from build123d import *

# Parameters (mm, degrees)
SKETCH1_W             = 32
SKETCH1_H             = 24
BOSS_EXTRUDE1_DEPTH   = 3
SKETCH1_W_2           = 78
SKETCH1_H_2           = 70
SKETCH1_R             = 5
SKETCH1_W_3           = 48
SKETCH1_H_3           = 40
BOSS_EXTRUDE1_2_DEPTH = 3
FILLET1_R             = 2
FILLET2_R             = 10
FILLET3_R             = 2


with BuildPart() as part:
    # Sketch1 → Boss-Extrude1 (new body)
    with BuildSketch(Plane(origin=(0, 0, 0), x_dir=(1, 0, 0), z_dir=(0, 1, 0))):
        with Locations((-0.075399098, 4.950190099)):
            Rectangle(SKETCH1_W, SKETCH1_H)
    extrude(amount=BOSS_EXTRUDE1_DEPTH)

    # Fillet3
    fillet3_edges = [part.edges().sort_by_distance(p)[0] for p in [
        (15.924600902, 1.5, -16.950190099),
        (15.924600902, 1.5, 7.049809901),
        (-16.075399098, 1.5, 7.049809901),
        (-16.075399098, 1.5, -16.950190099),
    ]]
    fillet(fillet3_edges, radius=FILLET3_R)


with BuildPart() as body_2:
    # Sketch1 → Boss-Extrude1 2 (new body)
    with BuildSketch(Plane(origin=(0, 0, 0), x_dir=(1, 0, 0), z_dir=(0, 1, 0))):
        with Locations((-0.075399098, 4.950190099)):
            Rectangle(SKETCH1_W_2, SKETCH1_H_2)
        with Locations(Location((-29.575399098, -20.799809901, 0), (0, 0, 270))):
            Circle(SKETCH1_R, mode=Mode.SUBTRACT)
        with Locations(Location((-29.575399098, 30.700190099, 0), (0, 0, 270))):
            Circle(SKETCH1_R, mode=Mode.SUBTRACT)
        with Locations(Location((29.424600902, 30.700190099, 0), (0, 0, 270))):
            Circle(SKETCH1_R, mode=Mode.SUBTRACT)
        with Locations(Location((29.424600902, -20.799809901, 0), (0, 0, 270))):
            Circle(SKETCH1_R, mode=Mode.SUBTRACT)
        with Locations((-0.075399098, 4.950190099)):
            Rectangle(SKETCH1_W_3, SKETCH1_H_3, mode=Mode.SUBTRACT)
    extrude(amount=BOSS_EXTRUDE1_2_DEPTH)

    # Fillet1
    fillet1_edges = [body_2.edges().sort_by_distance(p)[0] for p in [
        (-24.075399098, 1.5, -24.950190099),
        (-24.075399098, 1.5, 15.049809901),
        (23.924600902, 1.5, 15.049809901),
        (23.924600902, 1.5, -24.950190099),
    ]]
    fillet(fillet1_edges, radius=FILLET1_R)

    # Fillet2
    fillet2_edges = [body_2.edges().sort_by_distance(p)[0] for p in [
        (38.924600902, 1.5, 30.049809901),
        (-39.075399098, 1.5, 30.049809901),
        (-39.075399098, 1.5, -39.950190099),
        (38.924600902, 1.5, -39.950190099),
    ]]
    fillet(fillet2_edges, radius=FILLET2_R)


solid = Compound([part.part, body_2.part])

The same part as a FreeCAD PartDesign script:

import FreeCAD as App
import Part
import Sketcher

V = App.Vector


def edges_at(feature, points):
    """Names of the edges that pass closest to the given points."""
    edges = feature.Shape.Edges
    near = lambda p: min(range(len(edges)), key=lambda i: edges[i].distToShape(Part.Vertex(*p))[0])
    return sorted({f"Edge{near(p) + 1}" for p in points})

doc = App.newDocument("Part")
params = doc.addObject("Spreadsheet::Sheet", "Params")
for row, (alias, value) in enumerate([
    ("sketch1_width", "32 mm"),
    ("sketch1_height", "24 mm"),
    ("pad1_length", "3 mm"),
    ("fillet_radius", "2 mm"),
    ("sketch2_diameter", "10 mm"),
    ("sketch2_width", "78 mm"),
    ("sketch2_width2", "48 mm"),
    ("sketch2_height", "70 mm"),
    ("sketch2_height2", "40 mm"),
    ("pad2_length", "3 mm"),
    ("fillet2_radius", "2 mm"),
    ("fillet3_radius", "10 mm"),
], start=1):
    params.set(f"A{row}", alias)
    params.set(f"B{row}", "=" + value)
    params.setAlias(f"B{row}", alias)

body = doc.addObject("PartDesign::Body", "Body")

# Sketch on XZ plane
sketch1 = body.newObject("Sketcher::SketchObject", "Sketch")
sketch1.AttachmentSupport = (doc.getObject("XZ_Plane"), [""])
sketch1.MapMode = "FlatFace"
sketch1.addGeometry(Part.LineSegment(V(-16.075399, -16.95019, 0), V(-16.075399, 7.04981, 0)), False)
sketch1.addGeometry(Part.LineSegment(V(-16.075399, 7.04981, 0), V(15.924601, 7.04981, 0)), False)
sketch1.addGeometry(Part.LineSegment(V(15.924601, 7.04981, 0), V(15.924601, -16.95019, 0)), False)
sketch1.addGeometry(Part.LineSegment(V(15.924601, -16.95019, 0), V(-16.075399, -16.95019, 0)), False)
sketch1.addConstraint(Sketcher.Constraint("Coincident", 0, 2, 1, 1))
sketch1.addConstraint(Sketcher.Constraint("Coincident", 1, 2, 2, 1))
sketch1.addConstraint(Sketcher.Constraint("Coincident", 2, 2, 3, 1))
sketch1.addConstraint(Sketcher.Constraint("Coincident", 3, 2, 0, 1))
sketch1.addConstraint(Sketcher.Constraint("Vertical", 0))
sketch1.addConstraint(Sketcher.Constraint("Horizontal", 1))
sketch1.addConstraint(Sketcher.Constraint("Vertical", 2))
sketch1.addConstraint(Sketcher.Constraint("Horizontal", 3))
sketch1.addConstraint(Sketcher.Constraint("DistanceX", 1, 1, 1, 2, 32.0))
sketch1.addConstraint(Sketcher.Constraint("DistanceY", 0, 1, 0, 2, 24.0))
sketch1.addConstraint(Sketcher.Constraint("DistanceX", 0, 2, -1, 1, 16.075399))
sketch1.addConstraint(Sketcher.Constraint("DistanceY", -1, 1, 0, 2, 7.04981))
sketch1.setExpression("Constraints[8]", "Params.sketch1_width")
sketch1.setExpression("Constraints[9]", "Params.sketch1_height")
pad1 = body.newObject("PartDesign::Pad", "Pad")
pad1.Profile = sketch1
pad1.setExpression("Length", "Params.pad1_length")
pad1.Reversed = True
doc.recompute()

fillet = body.newObject("PartDesign::Fillet", "Fillet")
fillet.Base = (pad1, edges_at(pad1, [
    (15.925, 1.5, -16.95),
    (15.925, 1.5, 7.05),
    (-16.075, 1.5, 7.05),
    (-16.075, 1.5, -16.95),
]))
fillet.setExpression("Radius", "Params.fillet_radius")
body2 = doc.addObject("PartDesign::Body", "Body001")

# Sketch on XZ plane
sketch2 = body2.newObject("Sketcher::SketchObject", "Sketch001")
sketch2.AttachmentSupport = (doc.getObject("XZ_Plane001"), [""])
sketch2.MapMode = "FlatFace"
sketch2.addGeometry(Part.LineSegment(V(-39.075399, -39.95019, 0), V(-39.075399, 30.04981, 0)), False)
sketch2.addGeometry(Part.LineSegment(V(-39.075399, 30.04981, 0), V(38.924601, 30.04981, 0)), False)
sketch2.addGeometry(Part.LineSegment(V(38.924601, 30.04981, 0), V(38.924601, -39.95019, 0)), False)
sketch2.addGeometry(Part.LineSegment(V(38.924601, -39.95019, 0), V(-39.075399, -39.95019, 0)), False)
sketch2.addGeometry(Part.Circle(V(-29.575399, 20.79981, 0), V(0, 0, 1), 5), False)
sketch2.addGeometry(Part.Circle(V(29.424601, 20.79981, 0), V(0, 0, 1), 5), False)
sketch2.addGeometry(Part.Circle(V(-29.575399, -30.70019, 0), V(0, 0, 1), 5), False)
sketch2.addGeometry(Part.LineSegment(V(23.924601, 15.04981, 0), V(-24.075399, 15.04981, 0)), False)
sketch2.addGeometry(Part.LineSegment(V(-24.075399, 15.04981, 0), V(-24.075399, -24.95019, 0)), False)
sketch2.addGeometry(Part.LineSegment(V(-24.075399, -24.95019, 0), V(23.924601, -24.95019, 0)), False)
sketch2.addGeometry(Part.LineSegment(V(23.924601, -24.95019, 0), V(23.924601, 15.04981, 0)), False)
sketch2.addGeometry(Part.Circle(V(29.424601, -30.70019, 0), V(0, 0, 1), 5), False)
sketch2.addConstraint(Sketcher.Constraint("Coincident", 0, 2, 1, 1))
sketch2.addConstraint(Sketcher.Constraint("Coincident", 1, 2, 2, 1))
sketch2.addConstraint(Sketcher.Constraint("Coincident", 2, 2, 3, 1))
sketch2.addConstraint(Sketcher.Constraint("Coincident", 3, 2, 0, 1))
sketch2.addConstraint(Sketcher.Constraint("Coincident", 7, 2, 8, 1))
sketch2.addConstraint(Sketcher.Constraint("Coincident", 8, 2, 9, 1))
sketch2.addConstraint(Sketcher.Constraint("Coincident", 9, 2, 10, 1))
sketch2.addConstraint(Sketcher.Constraint("Coincident", 10, 2, 7, 1))
sketch2.addConstraint(Sketcher.Constraint("Vertical", 0))
sketch2.addConstraint(Sketcher.Constraint("Horizontal", 1))
sketch2.addConstraint(Sketcher.Constraint("Vertical", 2))
sketch2.addConstraint(Sketcher.Constraint("Horizontal", 3))
sketch2.addConstraint(Sketcher.Constraint("Horizontal", 7))
sketch2.addConstraint(Sketcher.Constraint("Vertical", 8))
sketch2.addConstraint(Sketcher.Constraint("Horizontal", 9))
sketch2.addConstraint(Sketcher.Constraint("Vertical", 10))
sketch2.addConstraint(Sketcher.Constraint("Equal", 4, 5))
sketch2.addConstraint(Sketcher.Constraint("Equal", 5, 6))
sketch2.addConstraint(Sketcher.Constraint("Equal", 6, 11))
sketch2.addConstraint(Sketcher.Constraint("Horizontal", 4, 3, 5, 3))
sketch2.addConstraint(Sketcher.Constraint("Horizontal", 6, 3, 11, 3))
sketch2.addConstraint(Sketcher.Constraint("Vertical", 4, 3, 6, 3))
sketch2.addConstraint(Sketcher.Constraint("Vertical", 5, 3, 11, 3))
sketch2.addConstraint(Sketcher.Constraint("Diameter", 4, 10.0))
sketch2.addConstraint(Sketcher.Constraint("DistanceX", 1, 1, 1, 2, 78.0))
sketch2.addConstraint(Sketcher.Constraint("DistanceX", 7, 2, 7, 1, 48.0))
sketch2.addConstraint(Sketcher.Constraint("DistanceY", 0, 1, 0, 2, 70.0))
sketch2.addConstraint(Sketcher.Constraint("DistanceY", 8, 2, 8, 1, 40.0))
sketch2.addConstraint(Sketcher.Constraint("DistanceX", 4, 3, 5, 3, 59.0))
sketch2.addConstraint(Sketcher.Constraint("DistanceX", 0, 2, 7, 2, 15.0))
sketch2.addConstraint(Sketcher.Constraint("DistanceY", 7, 2, 0, 2, 15.0))
sketch2.addConstraint(Sketcher.Constraint("DistanceY", 6, 3, 4, 3, 51.5))
sketch2.addConstraint(Sketcher.Constraint("DistanceX", 0, 2, 4, 3, 9.5))
sketch2.addConstraint(Sketcher.Constraint("DistanceY", 4, 3, 0, 2, 9.25))
sketch2.addConstraint(Sketcher.Constraint("DistanceX", 4, 3, -1, 1, 29.575399))
sketch2.addConstraint(Sketcher.Constraint("DistanceY", -1, 1, 4, 3, 20.79981))
sketch2.setExpression("Constraints[23]", "Params.sketch2_diameter")
sketch2.setExpression("Constraints[24]", "Params.sketch2_width")
sketch2.setExpression("Constraints[25]", "Params.sketch2_width2")
sketch2.setExpression("Constraints[26]", "Params.sketch2_height")
sketch2.setExpression("Constraints[27]", "Params.sketch2_height2")
pad2 = body2.newObject("PartDesign::Pad", "Pad001")
pad2.Profile = sketch2
pad2.setExpression("Length", "Params.pad2_length")
pad2.Reversed = True
doc.recompute()

fillet2 = body2.newObject("PartDesign::Fillet", "Fillet001")
fillet2.Base = (pad2, edges_at(pad2, [
    (-24.075, 1.5, -24.95),
    (-24.075, 1.5, 15.05),
    (23.925, 1.5, 15.05),
    (23.925, 1.5, -24.95),
]))
fillet2.setExpression("Radius", "Params.fillet2_radius")
doc.recompute()

fillet3 = body2.newObject("PartDesign::Fillet", "Fillet002")
fillet3.Base = (fillet2, edges_at(fillet2, [
    (38.925, 1.5, 30.05),
    (-39.075, 1.5, 30.05),
    (-39.075, 1.5, -39.95),
    (38.925, 1.5, -39.95),
]))
fillet3.setExpression("Radius", "Params.fillet3_radius")

doc.recompute()
